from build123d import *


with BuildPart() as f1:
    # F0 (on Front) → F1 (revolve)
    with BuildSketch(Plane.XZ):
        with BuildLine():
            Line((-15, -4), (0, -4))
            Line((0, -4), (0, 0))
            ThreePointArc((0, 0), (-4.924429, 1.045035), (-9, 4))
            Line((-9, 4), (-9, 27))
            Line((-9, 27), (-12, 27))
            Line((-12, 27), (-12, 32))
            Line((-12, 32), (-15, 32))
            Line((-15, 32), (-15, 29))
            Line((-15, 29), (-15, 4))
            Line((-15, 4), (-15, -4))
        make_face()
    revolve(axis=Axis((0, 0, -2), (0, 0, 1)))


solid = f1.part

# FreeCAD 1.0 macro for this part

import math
import FreeCAD as App
import Part
import Sketcher
from FreeCAD import Vector
Q = App.Units.Quantity

doc = App.newDocument("Part")
body = doc.addObject("PartDesign::Body", "Body")

# Sketch on XZ plane
sketch1 = body.newObject("Sketcher::SketchObject", "Sketch")
sketch1.AttachmentSupport = (doc.getObject("XZ_Plane"), [""])
sketch1.MapMode = "FlatFace"
sketch1.addGeometry([
    Part.LineSegment(Vector(-15, -4, 0), Vector(0, -4, 0)),  # 0
    Part.LineSegment(Vector(0, -4, 0), Vector(0, 0, 0)),  # 1
    Part.ArcOfCircle(Part.Circle(Vector(0, 12.1, 0), Vector(0, 0, 1), 12.1), math.radians(-138), math.radians(-90)),  # 2
    Part.LineSegment(Vector(-9, 4, 0), Vector(-9, 27, 0)),  # 3
    Part.LineSegment(Vector(-9, 27, 0), Vector(-12, 27, 0)),  # 4
    Part.LineSegment(Vector(-12, 27, 0), Vector(-12, 32, 0)),  # 5
    Part.LineSegment(Vector(-12, 32, 0), Vector(-15, 32, 0)),  # 6
    Part.LineSegment(Vector(-15, 32, 0), Vector(-15, -4, 0)),  # 7
], False)
sketch1.addConstraint([
    Sketcher.Constraint("Coincident", 0, 2, 1, 1),
    Sketcher.Constraint("Coincident", 1, 2, 2, 2),
    Sketcher.Constraint("Coincident", 2, 1, 3, 1),
    Sketcher.Constraint("Coincident", 3, 2, 4, 1),
    Sketcher.Constraint("Coincident", 4, 2, 5, 1),
    Sketcher.Constraint("Coincident", 5, 2, 6, 1),
    Sketcher.Constraint("Coincident", 6, 2, 7, 1),
    Sketcher.Constraint("Coincident", 7, 2, 0, 1),
    Sketcher.Constraint("Horizontal", 0),
    Sketcher.Constraint("Vertical", 1),
    Sketcher.Constraint("Vertical", 3),
    Sketcher.Constraint("Horizontal", 4),
    Sketcher.Constraint("Vertical", 5),
    Sketcher.Constraint("Horizontal", 6),
    Sketcher.Constraint("Vertical", 7),
    Sketcher.Constraint("Coincident", 1, 2, -1, 1),
    Sketcher.Constraint("PointOnObject", 2, 3, -2),
    Sketcher.Constraint("Equal", 4, 6),
    Sketcher.Constraint("DistanceX", 0, 1, 0, 2, Q("15 mm")),
    Sketcher.Constraint("DistanceX", 4, 2, 4, 1, Q("3 mm")),
    Sketcher.Constraint("DistanceY", 1, 1, 1, 2, Q("4 mm")),
    Sketcher.Constraint("DistanceY", 3, 1, 3, 2, Q("23 mm")),
    Sketcher.Constraint("DistanceY", 5, 1, 5, 2, Q("5 mm")),
    Sketcher.Constraint("DistanceY", 7, 2, 7, 1, Q("36 mm")),
])
revolution = body.newObject("PartDesign::Revolution", "Revolution")
revolution.Profile = sketch1
revolution.ReferenceAxis = (sketch1, ["V_Axis"])
revolution.Angle = 360

doc.recompute()
